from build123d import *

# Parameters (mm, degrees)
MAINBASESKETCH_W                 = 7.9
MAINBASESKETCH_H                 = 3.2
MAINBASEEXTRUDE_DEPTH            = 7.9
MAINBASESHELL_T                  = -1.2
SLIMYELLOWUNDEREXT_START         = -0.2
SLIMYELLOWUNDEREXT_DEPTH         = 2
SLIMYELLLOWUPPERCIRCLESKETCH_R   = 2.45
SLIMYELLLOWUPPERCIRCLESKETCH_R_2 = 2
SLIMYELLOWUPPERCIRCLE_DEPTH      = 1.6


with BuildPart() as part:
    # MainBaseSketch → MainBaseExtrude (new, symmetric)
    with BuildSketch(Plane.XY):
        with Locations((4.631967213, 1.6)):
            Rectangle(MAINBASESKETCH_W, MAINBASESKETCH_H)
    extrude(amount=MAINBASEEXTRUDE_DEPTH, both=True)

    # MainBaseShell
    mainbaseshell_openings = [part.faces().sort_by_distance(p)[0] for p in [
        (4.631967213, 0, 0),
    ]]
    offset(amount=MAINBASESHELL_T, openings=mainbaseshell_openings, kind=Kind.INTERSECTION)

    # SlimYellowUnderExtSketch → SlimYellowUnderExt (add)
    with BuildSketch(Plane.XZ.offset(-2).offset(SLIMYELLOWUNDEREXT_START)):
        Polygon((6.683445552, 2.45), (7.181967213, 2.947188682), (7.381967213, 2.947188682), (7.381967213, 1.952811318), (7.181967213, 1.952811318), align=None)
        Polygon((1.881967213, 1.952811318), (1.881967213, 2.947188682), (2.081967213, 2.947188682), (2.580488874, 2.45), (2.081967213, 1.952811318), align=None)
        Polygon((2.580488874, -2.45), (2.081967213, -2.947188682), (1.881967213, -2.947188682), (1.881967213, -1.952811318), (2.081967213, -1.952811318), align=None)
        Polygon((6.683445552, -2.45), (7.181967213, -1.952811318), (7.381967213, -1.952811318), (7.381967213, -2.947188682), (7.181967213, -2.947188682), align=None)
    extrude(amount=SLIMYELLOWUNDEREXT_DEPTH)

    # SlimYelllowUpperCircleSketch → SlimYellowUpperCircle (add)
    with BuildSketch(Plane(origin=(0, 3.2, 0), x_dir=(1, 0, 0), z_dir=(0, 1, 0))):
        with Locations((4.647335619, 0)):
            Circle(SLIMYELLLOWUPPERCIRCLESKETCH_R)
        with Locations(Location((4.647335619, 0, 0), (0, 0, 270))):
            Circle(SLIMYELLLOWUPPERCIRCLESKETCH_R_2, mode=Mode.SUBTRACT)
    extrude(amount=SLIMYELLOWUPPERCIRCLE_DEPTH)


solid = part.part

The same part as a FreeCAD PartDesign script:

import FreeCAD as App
import Part
import Sketcher
from FreeCAD import Vector


def faces_at(feature, points):
    """Names of the faces that lie closest to the given points."""
    faces = feature.Shape.Faces
    near = lambda p: min(range(len(faces)), key=lambda i: faces[i].distToShape(Part.Vertex(*p))[0])
    return sorted({f"Face{near(p) + 1}" for p in points})

doc = App.newDocument("Part")
body = doc.addObject("PartDesign::Body", "Body")

# Sketch on XY plane
sketch1 = body.newObject("Sketcher::SketchObject", "Sketch")
sketch1.AttachmentSupport = (doc.getObject("XY_Plane"), [""])
sketch1.MapMode = "FlatFace"
sketch1.addGeometry(Part.LineSegment(Vector(0.7, 3.2, 0), Vector(0.7, 0, 0)), False)
sketch1.addGeometry(Part.LineSegment(Vector(0.7, 0, 0), Vector(8.6, 0, 0)), False)
sketch1.addGeometry(Part.LineSegment(Vector(8.6, 0, 0), Vector(8.6, 3.2, 0)), False)
sketch1.addGeometry(Part.LineSegment(Vector(8.6, 3.2, 0), Vector(0.7, 3.2, 0)), False)
sketch1.addConstraint(Sketcher.Constraint("Coincident", 0, 2, 1, 1))
sketch1.addConstraint(Sketcher.Constraint("Coincident", 1, 2, 2, 1))
sketch1.addConstraint(Sketcher.Constraint("Coincident", 2, 2, 3, 1))
sketch1.addConstraint(Sketcher.Constraint("Coincident", 3, 2, 0, 1))
sketch1.addConstraint(Sketcher.Constraint("Vertical", 0))
sketch1.addConstraint(Sketcher.Constraint("Horizontal", 1))
sketch1.addConstraint(Sketcher.Constraint("Vertical", 2))
sketch1.addConstraint(Sketcher.Constraint("Horizontal", 3))
sketch1.addConstraint(Sketcher.Constraint("PointOnObject", 0, 2, -1))
sketch1.addConstraint(Sketcher.Constraint("DistanceX", 1, 1, 1, 2, 7.9))
sketch1.addConstraint(Sketcher.Constraint("DistanceY", 0, 2, 0, 1, 3.2))
sketch1.addConstraint(Sketcher.Constraint("DistanceX", -1, 1, 0, 2, 0.681967))
pad1 = body.newObject("PartDesign::Pad", "Pad")
pad1.Profile = sketch1
pad1.Length = 15.8
pad1.Midplane = True
doc.recompute()

thickness = body.newObject("PartDesign::Thickness", "Thickness")
thickness.Base = (pad1, faces_at(pad1, [(4.632, 0, 0)]))
thickness.Value = 1.2
thickness.Reversed = True
thickness.Join = "Intersection"

# Sketch on XZ plane
sketch2 = body.newObject("Sketcher::SketchObject", "Sketch001")
sketch2.AttachmentSupport = (doc.getObject("XZ_Plane"), [""])
sketch2.MapMode = "FlatFace"
sketch2.AttachmentOffset = App.Placement(Vector(0, 0, -2.2), App.Rotation())
sketch2.addGeometry(Part.LineSegment(Vector(7.18, 2.95, 0), Vector(6.68, 2.45, 0)), False)
sketch2.addGeometry(Part.LineSegment(Vector(6.68, 2.45, 0), Vector(7.18, 1.95, 0)), False)
sketch2.addGeometry(Part.LineSegment(Vector(7.18, 1.95, 0), Vector(7.38, 1.95, 0)), False)
sketch2.addGeometry(Part.LineSegment(Vector(7.38, 1.95, 0), Vector(7.38, 2.95, 0)), False)
sketch2.addGeometry(Part.LineSegment(Vector(7.38, 2.95, 0), Vector(7.18, 2.95, 0)), False)
sketch2.addGeometry(Part.LineSegment(Vector(1.88, 2.95, 0), Vector(1.88, 1.95, 0)), False)
sketch2.addGeometry(Part.LineSegment(Vector(1.88, 1.95, 0), Vector(2.08, 1.95, 0)), False)
sketch2.addGeometry(Part.LineSegment(Vector(2.08, 1.95, 0), Vector(2.58, 2.45, 0)), False)
sketch2.addGeometry(Part.LineSegment(Vector(2.58, 2.45, 0), Vector(2.08, 2.95, 0)), False)
sketch2.addGeometry(Part.LineSegment(Vector(2.08, 2.95, 0), Vector(1.88, 2.95, 0)), False)
sketch2.addGeometry(Part.LineSegment(Vector(2.08, -2.95, 0), Vector(2.58, -2.45, 0)), False)
sketch2.addGeometry(Part.LineSegment(Vector(2.58, -2.45, 0), Vector(2.08, -1.95, 0)), False)
sketch2.addGeometry(Part.LineSegment(Vector(2.08, -1.95, 0), Vector(1.88, -1.95, 0)), False)
sketch2.addGeometry(Part.LineSegment(Vector(1.88, -1.95, 0), Vector(1.88, -2.95, 0)), False)
sketch2.addGeometry(Part.LineSegment(Vector(1.88, -2.95, 0), Vector(2.08, -2.95, 0)), False)
sketch2.addGeometry(Part.LineSegment(Vector(7.18, -1.95, 0), Vector(6.68, -2.45, 0)), False)
sketch2.addGeometry(Part.LineSegment(Vector(6.68, -2.45, 0), Vector(7.18, -2.95, 0)), False)
sketch2.addGeometry(Part.LineSegment(Vector(7.18, -2.95, 0), Vector(7.38, -2.95, 0)), False)
sketch2.addGeometry(Part.LineSegment(Vector(7.38, -2.95, 0), Vector(7.38, -1.95, 0)), False)
sketch2.addGeometry(Part.LineSegment(Vector(7.38, -1.95, 0), Vector(7.18, -1.95, 0)), False)
sketch2.addConstraint(Sketcher.Constraint("Coincident", 0, 2, 1, 1))
sketch2.addConstraint(Sketcher.Constraint("Coincident", 1, 2, 2, 1))
sketch2.addConstraint(Sketcher.Constraint("Coincident", 2, 2, 3, 1))
sketch2.addConstraint(Sketcher.Constraint("Coincident", 3, 2, 4, 1))
sketch2.addConstraint(Sketcher.Constraint("Coincident", 4, 2, 0, 1))
sketch2.addConstraint(Sketcher.Constraint("Coincident", 5, 2, 6, 1))
sketch2.addConstraint(Sketcher.Constraint("Coincident", 6, 2, 7, 1))
sketch2.addConstraint(Sketcher.Constraint("Coincident", 7, 2, 8, 1))
sketch2.addConstraint(Sketcher.Constraint("Coincident", 8, 2, 9, 1))
sketch2.addConstraint(Sketcher.Constraint("Coincident", 9, 2, 5, 1))
sketch2.addConstraint(Sketcher.Constraint("Coincident", 10, 2, 11, 1))
sketch2.addConstraint(Sketcher.Constraint("Coincident", 11, 2, 12, 1))
sketch2.addConstraint(Sketcher.Constraint("Coincident", 12, 2, 13, 1))
sketch2.addConstraint(Sketcher.Constraint("Coincident", 13, 2, 14, 1))
sketch2.addConstraint(Sketcher.Constraint("Coincident", 14, 2, 10, 1))
sketch2.addConstraint(Sketcher.Constraint("Coincident", 15, 2, 16, 1))
sketch2.addConstraint(Sketcher.Constraint("Coincident", 16, 2, 17, 1))
sketch2.addConstraint(Sketcher.Constraint("Coincident", 17, 2, 18, 1))
sketch2.addConstraint(Sketcher.Constraint("Coincident", 18, 2, 19, 1))
sketch2.addConstraint(Sketcher.Constraint("Coincident", 19, 2, 15, 1))
sketch2.addConstraint(Sketcher.Constraint("Horizontal", 2))
sketch2.addConstraint(Sketcher.Constraint("Vertical", 3))
sketch2.addConstraint(Sketcher.Constraint("Horizontal", 4))
sketch2.addConstraint(Sketcher.Constraint("Vertical", 5))
sketch2.addConstraint(Sketcher.Constraint("Horizontal", 6))
sketch2.addConstraint(Sketcher.Constraint("Horizontal", 9))
sketch2.addConstraint(Sketcher.Constraint("Horizontal", 12))
sketch2.addConstraint(Sketcher.Constraint("Vertical", 13))
sketch2.addConstraint(Sketcher.Constraint("Horizontal", 14))
sketch2.addConstraint(Sketcher.Constraint("Horizontal", 17))
sketch2.addConstraint(Sketcher.Constraint("Vertical", 18))
sketch2.addConstraint(Sketcher.Constraint("Horizontal", 19))
sketch2.addConstraint(Sketcher.Constraint("Symmetric", 7, 2, 10, 2, -1))
sketch2.addConstraint(Sketcher.Constraint("Symmetric", 6, 2, 11, 2, -1))
sketch2.addConstraint(Sketcher.Constraint("Symmetric", 9, 2, 13, 2, -1))
sketch2.addConstraint(Sketcher.Constraint("Symmetric", 0, 2, 15, 2, -1))
sketch2.addConstraint(Sketcher.Constraint("Symmetric", 4, 2, 16, 2, -1))
sketch2.addConstraint(Sketcher.Constraint("Symmetric", 2, 2, 18, 2, -1))
sketch2.addConstraint(Sketcher.Constraint("Parallel", 0, 7))
sketch2.addConstraint(Sketcher.Constraint("Parallel", 1, 8))
sketch2.addConstraint(Sketcher.Constraint("Parallel", 7, 10))
sketch2.addConstraint(Sketcher.Constraint("Parallel", 8, 11))
sketch2.addConstraint(Sketcher.Constraint("Parallel", 10, 15))
sketch2.addConstraint(Sketcher.Constraint("Horizontal", 2, 2, 5, 2))
sketch2.addConstraint(Sketcher.Constraint("Horizontal", 0, 2, 7, 2))
sketch2.addConstraint(Sketcher.Constraint("Horizontal", 4, 2, 8, 2))
sketch2.addConstraint(Sketcher.Constraint("Vertical", 1, 2, 4, 2))
sketch2.addConstraint(Sketcher.Constraint("Equal", 4, 6))
sketch2.addConstraint(Sketcher.Constraint("DistanceX", 2, 1, 2, 2, 0.2))
sketch2.addConstraint(Sketcher.Constraint("DistanceX", 5, 2, 1, 2, 5.3))
sketch2.addConstraint(Sketcher.Constraint("DistanceY", 10, 2, 7, 2, 4.9))
sketch2.addConstraint(Sketcher.Constraint("DistanceY", 3, 1, 3, 2, 0.994377))
sketch2.addConstraint(Sketcher.Constraint("DistanceX", -1, 1, 7, 2, 2.580489))
sketch2.addConstraint(Sketcher.Constraint("DistanceX", 0, 2, 1, 2, 0.498522))
pad2 = body.newObject("PartDesign::Pad", "Pad001")
pad2.Profile = sketch2
pad2.Length = 2

# Sketch on XZ plane
sketch3 = body.newObject("Sketcher::SketchObject", "Sketch002")
sketch3.AttachmentSupport = (doc.getObject("XZ_Plane"), [""])
sketch3.MapMode = "FlatFace"
sketch3.AttachmentOffset = App.Placement(Vector(0, 0, -3.2), App.Rotation())
sketch3.addGeometry(Part.Circle(Vector(4.6, 0, 0), Vector(0, 0, 1), 2.5), False)
sketch3.addGeometry(Part.Circle(Vector(4.6, 0, 0), Vector(0, 0, 1), 2), False)
sketch3.addConstraint(Sketcher.Constraint("Coincident", 1, 3, 0, 3))
sketch3.addConstraint(Sketcher.Constraint("PointOnObject", 0, 3, -1))
sketch3.addConstraint(Sketcher.Constraint("Diameter", 1, 4.0))
sketch3.addConstraint(Sketcher.Constraint("Diameter", 0, 4.9))
sketch3.addConstraint(Sketcher.Constraint("DistanceX", -1, 1, 0, 3, 4.647336))
pad3 = body.newObject("PartDesign::Pad", "Pad002")
pad3.Profile = sketch3
pad3.Length = 1.6
pad3.Reversed = True

doc.recompute()
